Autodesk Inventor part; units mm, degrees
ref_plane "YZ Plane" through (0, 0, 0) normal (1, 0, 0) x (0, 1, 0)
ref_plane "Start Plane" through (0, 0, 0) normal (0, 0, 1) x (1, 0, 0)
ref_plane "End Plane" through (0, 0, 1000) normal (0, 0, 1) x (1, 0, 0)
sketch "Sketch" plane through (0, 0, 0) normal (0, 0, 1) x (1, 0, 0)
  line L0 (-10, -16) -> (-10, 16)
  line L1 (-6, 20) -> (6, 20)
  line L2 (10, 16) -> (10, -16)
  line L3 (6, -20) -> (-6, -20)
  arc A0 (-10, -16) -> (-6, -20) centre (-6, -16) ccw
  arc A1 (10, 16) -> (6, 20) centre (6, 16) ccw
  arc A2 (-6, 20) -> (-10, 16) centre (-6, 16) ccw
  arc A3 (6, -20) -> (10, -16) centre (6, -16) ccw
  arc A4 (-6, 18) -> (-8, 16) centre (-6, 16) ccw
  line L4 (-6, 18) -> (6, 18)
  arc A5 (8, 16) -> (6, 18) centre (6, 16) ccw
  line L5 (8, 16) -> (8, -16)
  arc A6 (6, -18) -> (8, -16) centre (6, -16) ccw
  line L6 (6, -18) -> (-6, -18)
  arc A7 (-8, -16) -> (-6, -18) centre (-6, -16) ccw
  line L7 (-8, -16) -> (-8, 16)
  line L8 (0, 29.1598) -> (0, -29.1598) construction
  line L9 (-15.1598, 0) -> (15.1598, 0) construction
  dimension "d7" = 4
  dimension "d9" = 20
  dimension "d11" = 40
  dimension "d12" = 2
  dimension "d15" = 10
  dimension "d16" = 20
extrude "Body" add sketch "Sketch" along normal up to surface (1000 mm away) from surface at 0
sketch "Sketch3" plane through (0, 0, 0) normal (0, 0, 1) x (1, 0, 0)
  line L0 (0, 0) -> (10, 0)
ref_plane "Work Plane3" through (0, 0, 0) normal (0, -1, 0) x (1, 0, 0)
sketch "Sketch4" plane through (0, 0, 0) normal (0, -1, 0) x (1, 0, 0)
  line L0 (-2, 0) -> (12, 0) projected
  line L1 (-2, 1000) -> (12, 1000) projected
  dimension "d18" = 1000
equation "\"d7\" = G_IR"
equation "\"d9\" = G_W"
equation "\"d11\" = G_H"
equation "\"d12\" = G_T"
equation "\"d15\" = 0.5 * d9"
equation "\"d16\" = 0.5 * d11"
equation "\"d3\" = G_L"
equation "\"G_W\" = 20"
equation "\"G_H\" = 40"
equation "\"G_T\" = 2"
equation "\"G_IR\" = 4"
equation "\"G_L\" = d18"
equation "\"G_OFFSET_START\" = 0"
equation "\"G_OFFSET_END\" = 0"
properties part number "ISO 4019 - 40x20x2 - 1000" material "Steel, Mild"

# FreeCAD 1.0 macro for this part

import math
import FreeCAD as App
import Part
import Sketcher
from FreeCAD import Vector
Q = App.Units.Quantity

doc = App.newDocument("Part")
params = doc.addObject("Spreadsheet::Sheet", "Params")
for row, (alias, value) in enumerate([
    ("sketch1_radius", "4 mm"),
    ("sketch1_radius2", "2 mm"),
    ("pad1_length", "1000 mm"),
], start=1):
    params.set(f"A{row}", alias)
    params.set(f"B{row}", "=" + value)
    params.setAlias(f"B{row}", alias)

body = doc.addObject("PartDesign::Body", "Body")

# Sketch on XY plane
sketch1 = body.newObject("Sketcher::SketchObject", "Sketch")
sketch1.AttachmentSupport = (doc.getObject("XY_Plane"), [""])
sketch1.MapMode = "FlatFace"
sketch1.addGeometry([
    Part.LineSegment(Vector(-10, 16, 0), Vector(-10, -16, 0)),  # 0
    Part.ArcOfCircle(Part.Circle(Vector(-6, -16, 0), Vector(0, 0, 1), 4), math.radians(180), math.radians(270)),  # 1
    Part.LineSegment(Vector(-6, -20, 0), Vector(6, -20, 0)),  # 2
    Part.ArcOfCircle(Part.Circle(Vector(6, -16, 0), Vector(0, 0, 1), 4), math.radians(-90), math.radians(0)),  # 3
    Part.LineSegment(Vector(10, -16, 0), Vector(10, 16, 0)),  # 4
    Part.ArcOfCircle(Part.Circle(Vector(6, 16, 0), Vector(0, 0, 1), 4), math.radians(0), math.radians(90)),  # 5
    Part.LineSegment(Vector(6, 20, 0), Vector(-6, 20, 0)),  # 6
    Part.ArcOfCircle(Part.Circle(Vector(-6, 16, 0), Vector(0, 0, 1), 4), math.radians(90), math.radians(180)),  # 7
    Part.ArcOfCircle(Part.Circle(Vector(-6, 16, 0), Vector(0, 0, 1), 2), math.radians(90), math.radians(180)),  # 8
    Part.LineSegment(Vector(-6, 18, 0), Vector(6, 18, 0)),  # 9
    Part.ArcOfCircle(Part.Circle(Vector(6, 16, 0), Vector(0, 0, 1), 2), math.radians(0), math.radians(90)),  # 10
    Part.LineSegment(Vector(8, 16, 0), Vector(8, -16, 0)),  # 11
    Part.ArcOfCircle(Part.Circle(Vector(6, -16, 0), Vector(0, 0, 1), 2), math.radians(-90), math.radians(0)),  # 12
    Part.LineSegment(Vector(6, -18, 0), Vector(-6, -18, 0)),  # 13
    Part.ArcOfCircle(Part.Circle(Vector(-6, -16, 0), Vector(0, 0, 1), 2), math.radians(180), math.radians(270)),  # 14
    Part.LineSegment(Vector(-8, -16, 0), Vector(-8, 16, 0)),  # 15
], False)
sketch1.addConstraint([
    Sketcher.Constraint("Tangent", 0, 2, 1, 1),
    Sketcher.Constraint("Tangent", 1, 2, 2, 1),
    Sketcher.Constraint("Tangent", 2, 2, 3, 1),
    Sketcher.Constraint("Tangent", 3, 2, 4, 1),
    Sketcher.Constraint("Tangent", 4, 2, 5, 1),
    Sketcher.Constraint("Tangent", 5, 2, 6, 1),
    Sketcher.Constraint("Tangent", 6, 2, 7, 1),
    Sketcher.Constraint("Tangent", 7, 2, 0, 1),
    Sketcher.Constraint("Tangent", 8, 1, 9, 1),
    Sketcher.Constraint("Tangent", 9, 2, 10, 2),
    Sketcher.Constraint("Tangent", 10, 1, 11, 1),
    Sketcher.Constraint("Tangent", 11, 2, 12, 2),
    Sketcher.Constraint("Tangent", 12, 1, 13, 1),
    Sketcher.Constraint("Tangent", 13, 2, 14, 2),
    Sketcher.Constraint("Tangent", 14, 1, 15, 1),
    Sketcher.Constraint("Tangent", 15, 2, 8, 2),
    Sketcher.Constraint("Vertical", 0),
    Sketcher.Constraint("Horizontal", 2),
    Sketcher.Constraint("Vertical", 4),
    Sketcher.Constraint("Horizontal", 6),
    Sketcher.Constraint("Horizontal", 9),
    Sketcher.Constraint("Vertical", 11),
    Sketcher.Constraint("Horizontal", 13),
    Sketcher.Constraint("Vertical", 15),
    Sketcher.Constraint("Coincident", 8, 3, 7, 3),
    Sketcher.Constraint("Coincident", 10, 3, 5, 3),
    Sketcher.Constraint("Coincident", 12, 3, 3, 3),
    Sketcher.Constraint("Equal", 1, 3),
    Sketcher.Constraint("Equal", 3, 5),
    Sketcher.Constraint("Equal", 5, 7),
    Sketcher.Constraint("Equal", 12, 14),
    Sketcher.Constraint("Symmetric", 1, 3, 5, 3, -1, 1),
    Sketcher.Constraint("Radius", 1, Q("4 mm")),
    Sketcher.Constraint("Radius", 8, Q("2 mm")),
    Sketcher.Constraint("DistanceX", 0, 2, -1, 1, Q("10 mm")),
    Sketcher.Constraint("DistanceY", 1, 2, -1, 1, Q("20 mm")),
])
sketch1.setExpression("Constraints[32]", "Params.sketch1_radius")
sketch1.setExpression("Constraints[33]", "Params.sketch1_radius2")
pad1 = body.newObject("PartDesign::Pad", "Pad")
pad1.Profile = sketch1
pad1.setExpression("Length", "Params.pad1_length")

doc.recompute()
